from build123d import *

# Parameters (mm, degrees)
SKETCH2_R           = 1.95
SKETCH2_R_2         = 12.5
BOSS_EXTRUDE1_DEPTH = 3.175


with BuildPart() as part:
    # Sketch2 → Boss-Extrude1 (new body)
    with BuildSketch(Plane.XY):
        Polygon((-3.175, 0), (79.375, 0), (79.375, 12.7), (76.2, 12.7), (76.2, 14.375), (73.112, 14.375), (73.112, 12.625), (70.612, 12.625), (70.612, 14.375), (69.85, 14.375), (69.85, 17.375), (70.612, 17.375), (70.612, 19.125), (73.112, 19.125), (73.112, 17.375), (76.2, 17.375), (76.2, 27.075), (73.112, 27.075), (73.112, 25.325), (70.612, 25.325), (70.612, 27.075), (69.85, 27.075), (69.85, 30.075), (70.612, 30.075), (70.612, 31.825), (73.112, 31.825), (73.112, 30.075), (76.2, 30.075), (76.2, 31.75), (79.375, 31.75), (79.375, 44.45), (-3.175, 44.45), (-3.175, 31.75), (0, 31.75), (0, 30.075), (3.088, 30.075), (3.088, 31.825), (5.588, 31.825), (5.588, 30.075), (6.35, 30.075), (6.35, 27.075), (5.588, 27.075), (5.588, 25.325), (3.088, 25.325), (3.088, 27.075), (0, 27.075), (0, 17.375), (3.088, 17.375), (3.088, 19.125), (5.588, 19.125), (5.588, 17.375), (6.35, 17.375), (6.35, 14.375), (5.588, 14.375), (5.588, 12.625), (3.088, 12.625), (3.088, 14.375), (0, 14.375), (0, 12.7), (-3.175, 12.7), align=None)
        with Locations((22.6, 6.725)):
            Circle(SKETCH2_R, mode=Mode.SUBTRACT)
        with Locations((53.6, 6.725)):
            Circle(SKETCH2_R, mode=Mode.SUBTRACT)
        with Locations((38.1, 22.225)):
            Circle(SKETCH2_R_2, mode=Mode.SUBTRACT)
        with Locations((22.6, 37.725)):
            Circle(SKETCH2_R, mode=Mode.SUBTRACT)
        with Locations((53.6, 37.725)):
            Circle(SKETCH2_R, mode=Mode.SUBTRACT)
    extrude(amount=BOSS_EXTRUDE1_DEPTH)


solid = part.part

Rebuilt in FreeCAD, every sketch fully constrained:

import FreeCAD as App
import Part
import Sketcher
from FreeCAD import Vector


def add_polygon(sketch, points):
    """Adds a closed chain of lines whose ends are joined by coincident constraints."""
    first, n = sketch.GeometryCount, len(points)
    for a, b in zip(points, points[1:] + points[:1]):
        sketch.addGeometry(Part.LineSegment(App.Vector(*a, 0), App.Vector(*b, 0)), False)
    for i in range(n):
        sketch.addConstraint(Sketcher.Constraint("Coincident", first + i, 2, first + (i + 1) % n, 1))

doc = App.newDocument("Part")
body = doc.addObject("PartDesign::Body", "Body")

# Sketch on XY plane
sketch1 = body.newObject("Sketcher::SketchObject", "Sketch")
sketch1.AttachmentSupport = (doc.getObject("XY_Plane"), [""])
sketch1.MapMode = "FlatFace"
add_polygon(sketch1, [(-3.175, 0), (79.375, 0), (79.375, 12.7), (76.2, 12.7), (76.2, 14.375), (73.112, 14.375), (73.112, 12.625), (70.612, 12.625), (70.612, 14.375), (69.85, 14.375), (69.85, 17.375), (70.612, 17.375), (70.612, 19.125), (73.112, 19.125), (73.112, 17.375), (76.2, 17.375), (76.2, 27.075), (73.112, 27.075), (73.112, 25.325), (70.612, 25.325), (70.612, 27.075), (69.85, 27.075), (69.85, 30.075), (70.612, 30.075), (70.612, 31.825), (73.112, 31.825), (73.112, 30.075), (76.2, 30.075), (76.2, 31.75), (79.375, 31.75), (79.375, 44.45), (-3.175, 44.45), (-3.175, 31.75), (0, 31.75), (0, 30.075), (3.088, 30.075), (3.088, 31.825), (5.588, 31.825), (5.588, 30.075), (6.35, 30.075), (6.35, 27.075), (5.588, 27.075), (5.588, 25.325), (3.088, 25.325), (3.088, 27.075), (0, 27.075), (0, 17.375), (3.088, 17.375), (3.088, 19.125), (5.588, 19.125), (5.588, 17.375), (6.35, 17.375), (6.35, 14.375), (5.588, 14.375), (5.588, 12.625), (3.088, 12.625), (3.088, 14.375), (0, 14.375), (0, 12.7), (-3.175, 12.7)])  # lines 0-59
sketch1.addGeometry(Part.Circle(Vector(22.6, 6.725, 0), Vector(0, 0, 1), 1.95), False)  # 60
sketch1.addGeometry(Part.Circle(Vector(53.6, 6.725, 0), Vector(0, 0, 1), 1.95), False)  # 61
sketch1.addGeometry(Part.Circle(Vector(38.1, 22.225, 0), Vector(0, 0, 1), 12.5), False)  # 62
sketch1.addGeometry(Part.Circle(Vector(22.6, 37.725, 0), Vector(0, 0, 1), 1.95), False)  # 63
sketch1.addGeometry(Part.Circle(Vector(53.6, 37.725, 0), Vector(0, 0, 1), 1.95), False)  # 64
sketch1.addConstraint([
    Sketcher.Constraint("Horizontal", 0),
    Sketcher.Constraint("Vertical", 1),
    Sketcher.Constraint("Horizontal", 2),
    Sketcher.Constraint("Vertical", 3),
    Sketcher.Constraint("Horizontal", 4),
    Sketcher.Constraint("Vertical", 5),
    Sketcher.Constraint("Horizontal", 6),
    Sketcher.Constraint("Vertical", 7),
    Sketcher.Constraint("Horizontal", 8),
    Sketcher.Constraint("Vertical", 9),
    Sketcher.Constraint("Horizontal", 10),
    Sketcher.Constraint("Vertical", 11),
    Sketcher.Constraint("Horizontal", 12),
    Sketcher.Constraint("Vertical", 13),
    Sketcher.Constraint("Horizontal", 14),
    Sketcher.Constraint("Vertical", 15),
    Sketcher.Constraint("Horizontal", 16),
    Sketcher.Constraint("Vertical", 17),
    Sketcher.Constraint("Horizontal", 18),
    Sketcher.Constraint("Vertical", 19),
    Sketcher.Constraint("Horizontal", 20),
    Sketcher.Constraint("Vertical", 21),
    Sketcher.Constraint("Horizontal", 22),
    Sketcher.Constraint("Vertical", 23),
    Sketcher.Constraint("Horizontal", 24),
    Sketcher.Constraint("Vertical", 25),
    Sketcher.Constraint("Horizontal", 26),
    Sketcher.Constraint("Vertical", 27),
    Sketcher.Constraint("Horizontal", 28),
    Sketcher.Constraint("Vertical", 29),
    Sketcher.Constraint("Horizontal", 30),
    Sketcher.Constraint("Vertical", 31),
    Sketcher.Constraint("Horizontal", 32),
    Sketcher.Constraint("Vertical", 33),
    Sketcher.Constraint("Horizontal", 34),
    Sketcher.Constraint("Vertical", 35),
    Sketcher.Constraint("Horizontal", 36),
    Sketcher.Constraint("Vertical", 37),
    Sketcher.Constraint("Horizontal", 38),
    Sketcher.Constraint("Vertical", 39),
    Sketcher.Constraint("Horizontal", 40),
    Sketcher.Constraint("Vertical", 41),
    Sketcher.Constraint("Horizontal", 42),
    Sketcher.Constraint("Vertical", 43),
    Sketcher.Constraint("Horizontal", 44),
    Sketcher.Constraint("Vertical", 45),
    Sketcher.Constraint("Horizontal", 46),
    Sketcher.Constraint("Vertical", 47),
    Sketcher.Constraint("Horizontal", 48),
    Sketcher.Constraint("Vertical", 49),
    Sketcher.Constraint("Horizontal", 50),
    Sketcher.Constraint("Vertical", 51),
    Sketcher.Constraint("Horizontal", 52),
    Sketcher.Constraint("Vertical", 53),
    Sketcher.Constraint("Horizontal", 54),
    Sketcher.Constraint("Vertical", 55),
    Sketcher.Constraint("Horizontal", 56),
    Sketcher.Constraint("Vertical", 57),
    Sketcher.Constraint("Horizontal", 58),
    Sketcher.Constraint("Vertical", 59),
    Sketcher.Constraint("Equal", 60, 61),
    Sketcher.Constraint("Equal", 61, 63),
    Sketcher.Constraint("Equal", 63, 64),
    Sketcher.Constraint("PointOnObject", 0, 2, -1),
    Sketcher.Constraint("PointOnObject", 32, 2, -2),
    Sketcher.Constraint("PointOnObject", 44, 2, -2),
    Sketcher.Constraint("PointOnObject", 56, 2, -2),
    Sketcher.Constraint("Horizontal", 60, 3, 61, 3),
    Sketcher.Constraint("Horizontal", 63, 3, 64, 3),
    Sketcher.Constraint("Horizontal", 4, 2, 7, 2),
    Sketcher.Constraint("Horizontal", 10, 2, 13, 2),
    Sketcher.Constraint("Horizontal", 16, 2, 19, 2),
    Sketcher.Constraint("Horizontal", 22, 2, 25, 2),
    Sketcher.Constraint("Horizontal", 28, 2, 31, 2),
    Sketcher.Constraint("Horizontal", 26, 2, 33, 2),
    Sketcher.Constraint("Horizontal", 24, 2, 35, 2),
    Sketcher.Constraint("Horizontal", 34, 2, 37, 2),
    Sketcher.Constraint("Horizontal", 20, 2, 39, 2),
    Sketcher.Constraint("Horizontal", 18, 2, 41, 2),
    Sketcher.Constraint("Horizontal", 40, 2, 43, 2),
    Sketcher.Constraint("Horizontal", 14, 2, 45, 2),
    Sketcher.Constraint("Horizontal", 12, 2, 47, 2),
    Sketcher.Constraint("Horizontal", 46, 2, 49, 2),
    Sketcher.Constraint("Horizontal", 8, 2, 51, 2),
    Sketcher.Constraint("Horizontal", 6, 2, 53, 2),
    Sketcher.Constraint("Horizontal", 52, 2, 55, 2),
    Sketcher.Constraint("Horizontal", 2, 2, 57, 2),
    Sketcher.Constraint("Vertical", 60, 3, 63, 3),
    Sketcher.Constraint("Vertical", 61, 3, 64, 3),
    Sketcher.Constraint("Vertical", 7, 2, 10, 2),
    Sketcher.Constraint("Vertical", 5, 2, 12, 2),
    Sketcher.Constraint("Vertical", 3, 2, 14, 2),
    Sketcher.Constraint("Vertical", 13, 2, 16, 2),
    Sketcher.Constraint("Vertical", 11, 2, 18, 2),
    Sketcher.Constraint("Vertical", 9, 2, 20, 2),
    Sketcher.Constraint("Vertical", 19, 2, 22, 2),
    Sketcher.Constraint("Vertical", 17, 2, 24, 2),
    Sketcher.Constraint("Vertical", 15, 2, 26, 2),
    Sketcher.Constraint("Vertical", 1, 2, 28, 2),
    Sketcher.Constraint("Vertical", 37, 2, 40, 2),
    Sketcher.Constraint("Vertical", 35, 2, 42, 2),
    Sketcher.Constraint("Vertical", 43, 2, 46, 2),
    Sketcher.Constraint("Vertical", 41, 2, 48, 2),
    Sketcher.Constraint("Vertical", 39, 2, 50, 2),
    Sketcher.Constraint("Vertical", 49, 2, 52, 2),
    Sketcher.Constraint("Vertical", 47, 2, 54, 2),
    Sketcher.Constraint("Vertical", 31, 2, 58, 2),
    Sketcher.Constraint("Equal", 28, 32),
    Sketcher.Constraint("Equal", 26, 34),
    Sketcher.Constraint("Equal", 24, 36),
    Sketcher.Constraint("Equal", 22, 38),
    Sketcher.Constraint("Equal", 7, 11),
    Sketcher.Constraint("Equal", 13, 17),
    Sketcher.Constraint("Equal", 9, 21),
    Sketcher.Constraint("Equal", 19, 23),
    Sketcher.Constraint("Equal", 3, 27),
    Sketcher.Constraint("Equal", 1, 29),
    Sketcher.Constraint("Diameter", 62, 25.0),
    Sketcher.Constraint("Diameter", 60, 3.9),
    Sketcher.Constraint("DistanceY", 9, 1, 9, 2, 3.0),
    Sketcher.Constraint("DistanceX", 6, 2, 6, 1, 2.5),
    Sketcher.Constraint("DistanceY", 1, 1, 1, 2, 12.7),
    Sketcher.Constraint("DistanceY", 15, 1, 15, 2, 9.7),
    Sketcher.Constraint("DistanceX", 0, 1, 0, 2, 82.55),
    Sketcher.Constraint("DistanceY", 5, 2, 5, 1, 1.75),
    Sketcher.Constraint("DistanceX", -1, 1, 60, 3, 22.6),
    Sketcher.Constraint("DistanceX", -1, 1, 61, 3, 53.6),
    Sketcher.Constraint("DistanceX", -1, 1, 62, 3, 38.1),
    Sketcher.Constraint("DistanceX", -1, 1, 2, 2, 76.2),
    Sketcher.Constraint("DistanceX", 4, 2, 4, 1, 3.088),
    Sketcher.Constraint("DistanceX", 8, 2, 8, 1, 0.762),
    Sketcher.Constraint("DistanceY", 3, 1, 3, 2, 1.675),
    Sketcher.Constraint("DistanceY", -1, 1, 60, 3, 6.725),
    Sketcher.Constraint("DistanceY", -1, 1, 62, 3, 22.225),
    Sketcher.Constraint("DistanceY", -1, 1, 63, 3, 37.725),
])
pad1 = body.newObject("PartDesign::Pad", "Pad")
pad1.Profile = sketch1
pad1.Length = 3.175

doc.recompute()
